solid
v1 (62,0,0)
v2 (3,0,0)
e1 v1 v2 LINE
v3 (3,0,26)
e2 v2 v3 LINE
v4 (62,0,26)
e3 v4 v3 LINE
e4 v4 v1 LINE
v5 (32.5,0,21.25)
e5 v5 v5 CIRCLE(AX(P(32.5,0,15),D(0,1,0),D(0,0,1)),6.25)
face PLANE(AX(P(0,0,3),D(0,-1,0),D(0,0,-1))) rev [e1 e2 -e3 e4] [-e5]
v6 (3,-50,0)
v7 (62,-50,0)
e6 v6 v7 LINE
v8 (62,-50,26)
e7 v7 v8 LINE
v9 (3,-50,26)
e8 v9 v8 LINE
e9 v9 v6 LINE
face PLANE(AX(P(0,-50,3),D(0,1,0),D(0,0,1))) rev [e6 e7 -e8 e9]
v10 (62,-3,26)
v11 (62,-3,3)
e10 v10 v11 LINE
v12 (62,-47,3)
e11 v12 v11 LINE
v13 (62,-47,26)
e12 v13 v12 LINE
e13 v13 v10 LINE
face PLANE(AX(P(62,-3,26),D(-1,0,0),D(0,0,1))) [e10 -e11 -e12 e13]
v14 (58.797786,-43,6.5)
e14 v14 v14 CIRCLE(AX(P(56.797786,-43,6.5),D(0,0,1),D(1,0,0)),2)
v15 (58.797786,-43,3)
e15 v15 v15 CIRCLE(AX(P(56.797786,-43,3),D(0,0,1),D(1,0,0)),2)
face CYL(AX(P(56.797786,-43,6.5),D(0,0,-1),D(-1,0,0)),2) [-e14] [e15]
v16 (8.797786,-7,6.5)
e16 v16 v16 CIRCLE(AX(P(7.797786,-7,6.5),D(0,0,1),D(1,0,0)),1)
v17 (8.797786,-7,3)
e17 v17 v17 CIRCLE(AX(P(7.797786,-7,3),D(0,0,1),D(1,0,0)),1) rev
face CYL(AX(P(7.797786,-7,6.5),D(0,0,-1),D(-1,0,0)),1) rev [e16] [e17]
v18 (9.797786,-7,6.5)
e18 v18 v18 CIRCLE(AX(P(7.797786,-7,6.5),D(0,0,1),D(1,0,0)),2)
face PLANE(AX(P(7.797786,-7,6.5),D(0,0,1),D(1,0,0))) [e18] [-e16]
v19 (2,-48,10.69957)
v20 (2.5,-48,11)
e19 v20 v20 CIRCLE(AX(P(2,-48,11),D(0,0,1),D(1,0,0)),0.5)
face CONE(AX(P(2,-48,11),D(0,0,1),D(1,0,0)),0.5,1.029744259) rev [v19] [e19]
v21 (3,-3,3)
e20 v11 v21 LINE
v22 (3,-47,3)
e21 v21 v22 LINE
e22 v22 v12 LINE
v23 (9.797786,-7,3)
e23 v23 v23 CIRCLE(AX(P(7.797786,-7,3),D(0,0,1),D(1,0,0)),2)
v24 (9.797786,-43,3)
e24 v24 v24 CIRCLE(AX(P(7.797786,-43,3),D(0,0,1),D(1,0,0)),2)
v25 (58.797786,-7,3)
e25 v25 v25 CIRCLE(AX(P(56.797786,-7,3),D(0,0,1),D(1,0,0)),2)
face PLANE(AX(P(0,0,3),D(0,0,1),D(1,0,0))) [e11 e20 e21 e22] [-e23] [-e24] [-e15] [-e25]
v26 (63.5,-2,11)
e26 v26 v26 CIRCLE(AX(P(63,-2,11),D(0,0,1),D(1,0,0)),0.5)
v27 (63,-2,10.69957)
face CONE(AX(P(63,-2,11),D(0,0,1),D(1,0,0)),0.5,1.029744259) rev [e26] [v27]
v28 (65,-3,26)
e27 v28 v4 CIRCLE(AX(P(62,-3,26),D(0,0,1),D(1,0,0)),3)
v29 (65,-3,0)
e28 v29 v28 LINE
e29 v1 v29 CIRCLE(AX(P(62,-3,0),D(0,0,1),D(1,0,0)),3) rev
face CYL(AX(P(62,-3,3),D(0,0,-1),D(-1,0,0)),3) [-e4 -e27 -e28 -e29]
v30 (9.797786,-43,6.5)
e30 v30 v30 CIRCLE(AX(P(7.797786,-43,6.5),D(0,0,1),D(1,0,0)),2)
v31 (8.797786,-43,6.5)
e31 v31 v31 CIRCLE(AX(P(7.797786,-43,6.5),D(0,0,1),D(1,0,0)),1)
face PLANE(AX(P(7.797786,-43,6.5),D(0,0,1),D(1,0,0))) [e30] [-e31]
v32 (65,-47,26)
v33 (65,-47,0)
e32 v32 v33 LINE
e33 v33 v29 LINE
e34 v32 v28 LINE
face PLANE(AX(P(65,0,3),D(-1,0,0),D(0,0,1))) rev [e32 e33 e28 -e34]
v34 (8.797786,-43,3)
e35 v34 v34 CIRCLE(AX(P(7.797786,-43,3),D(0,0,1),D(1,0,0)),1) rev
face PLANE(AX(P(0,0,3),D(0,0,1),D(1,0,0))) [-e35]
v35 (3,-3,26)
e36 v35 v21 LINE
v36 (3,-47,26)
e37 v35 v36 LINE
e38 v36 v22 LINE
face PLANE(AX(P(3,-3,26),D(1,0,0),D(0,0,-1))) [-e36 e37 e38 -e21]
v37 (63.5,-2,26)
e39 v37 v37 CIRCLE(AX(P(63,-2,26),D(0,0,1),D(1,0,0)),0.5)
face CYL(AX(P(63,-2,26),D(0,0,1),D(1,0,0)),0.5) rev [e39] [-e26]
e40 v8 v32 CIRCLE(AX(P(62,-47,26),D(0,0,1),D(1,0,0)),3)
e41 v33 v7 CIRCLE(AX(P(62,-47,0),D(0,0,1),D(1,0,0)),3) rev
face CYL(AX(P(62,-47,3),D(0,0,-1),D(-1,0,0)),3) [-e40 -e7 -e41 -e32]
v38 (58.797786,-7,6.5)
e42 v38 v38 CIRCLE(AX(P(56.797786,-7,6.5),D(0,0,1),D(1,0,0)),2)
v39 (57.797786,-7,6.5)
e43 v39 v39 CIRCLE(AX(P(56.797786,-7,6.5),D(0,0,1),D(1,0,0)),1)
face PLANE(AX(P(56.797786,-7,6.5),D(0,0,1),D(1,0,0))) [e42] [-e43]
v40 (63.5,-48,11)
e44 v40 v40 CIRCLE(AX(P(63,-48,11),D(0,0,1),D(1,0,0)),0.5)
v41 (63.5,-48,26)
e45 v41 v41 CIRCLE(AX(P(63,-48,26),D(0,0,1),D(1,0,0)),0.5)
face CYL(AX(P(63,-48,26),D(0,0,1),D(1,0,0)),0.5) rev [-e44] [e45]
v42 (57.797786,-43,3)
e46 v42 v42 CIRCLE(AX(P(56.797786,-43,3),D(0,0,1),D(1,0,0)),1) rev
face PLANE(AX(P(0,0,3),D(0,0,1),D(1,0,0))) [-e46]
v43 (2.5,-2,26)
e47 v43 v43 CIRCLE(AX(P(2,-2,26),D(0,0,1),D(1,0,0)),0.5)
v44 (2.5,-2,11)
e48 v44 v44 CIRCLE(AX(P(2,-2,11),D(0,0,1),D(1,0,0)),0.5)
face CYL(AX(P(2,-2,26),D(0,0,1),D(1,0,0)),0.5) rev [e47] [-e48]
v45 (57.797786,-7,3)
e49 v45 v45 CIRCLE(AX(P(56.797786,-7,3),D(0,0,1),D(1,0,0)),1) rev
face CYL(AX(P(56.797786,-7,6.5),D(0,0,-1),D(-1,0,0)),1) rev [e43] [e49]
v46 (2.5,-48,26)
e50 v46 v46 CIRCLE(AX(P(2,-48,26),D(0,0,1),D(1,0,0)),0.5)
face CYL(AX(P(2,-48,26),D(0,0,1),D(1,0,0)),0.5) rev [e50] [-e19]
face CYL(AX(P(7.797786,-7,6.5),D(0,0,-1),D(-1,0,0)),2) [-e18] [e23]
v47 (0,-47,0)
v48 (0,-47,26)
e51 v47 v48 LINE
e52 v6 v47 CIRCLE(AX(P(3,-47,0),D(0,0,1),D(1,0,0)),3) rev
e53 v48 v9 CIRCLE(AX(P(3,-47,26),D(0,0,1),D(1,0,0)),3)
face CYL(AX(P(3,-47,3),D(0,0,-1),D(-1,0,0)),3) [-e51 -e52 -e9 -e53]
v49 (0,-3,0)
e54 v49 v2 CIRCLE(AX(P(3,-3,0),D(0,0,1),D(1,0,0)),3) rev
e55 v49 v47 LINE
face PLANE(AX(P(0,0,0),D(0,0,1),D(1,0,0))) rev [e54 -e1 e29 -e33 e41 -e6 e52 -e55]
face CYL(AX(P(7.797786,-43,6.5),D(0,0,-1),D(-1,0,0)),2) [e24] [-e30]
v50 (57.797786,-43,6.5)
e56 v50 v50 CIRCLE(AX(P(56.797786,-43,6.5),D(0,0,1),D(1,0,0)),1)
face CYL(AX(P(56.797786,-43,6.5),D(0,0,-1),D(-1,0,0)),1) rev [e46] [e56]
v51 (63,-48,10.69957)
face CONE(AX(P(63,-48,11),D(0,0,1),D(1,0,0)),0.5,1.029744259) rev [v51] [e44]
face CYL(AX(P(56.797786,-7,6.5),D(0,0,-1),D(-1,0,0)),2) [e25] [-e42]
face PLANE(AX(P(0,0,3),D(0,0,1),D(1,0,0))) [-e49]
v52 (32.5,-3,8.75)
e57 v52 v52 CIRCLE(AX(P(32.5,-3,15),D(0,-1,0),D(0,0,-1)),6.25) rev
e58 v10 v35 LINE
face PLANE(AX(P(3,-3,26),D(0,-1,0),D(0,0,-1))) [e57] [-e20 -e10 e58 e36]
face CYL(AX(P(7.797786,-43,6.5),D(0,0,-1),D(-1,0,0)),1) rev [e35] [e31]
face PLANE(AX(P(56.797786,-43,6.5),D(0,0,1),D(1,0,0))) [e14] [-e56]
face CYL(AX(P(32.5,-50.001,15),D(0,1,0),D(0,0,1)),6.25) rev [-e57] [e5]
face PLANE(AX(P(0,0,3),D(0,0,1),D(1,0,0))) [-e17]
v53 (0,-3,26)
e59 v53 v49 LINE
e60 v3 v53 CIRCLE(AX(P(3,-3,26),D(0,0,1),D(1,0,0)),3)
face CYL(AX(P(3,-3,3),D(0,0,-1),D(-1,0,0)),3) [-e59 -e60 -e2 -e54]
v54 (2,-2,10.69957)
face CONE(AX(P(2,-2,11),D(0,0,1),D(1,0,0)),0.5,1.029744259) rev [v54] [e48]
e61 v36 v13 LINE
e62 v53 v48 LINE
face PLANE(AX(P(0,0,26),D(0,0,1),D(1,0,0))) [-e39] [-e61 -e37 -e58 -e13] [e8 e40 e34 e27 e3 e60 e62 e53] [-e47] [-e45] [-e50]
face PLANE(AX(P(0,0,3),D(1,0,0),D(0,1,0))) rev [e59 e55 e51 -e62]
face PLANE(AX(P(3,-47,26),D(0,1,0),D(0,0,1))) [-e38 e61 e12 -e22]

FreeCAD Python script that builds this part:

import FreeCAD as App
import Part
import Sketcher

V = App.Vector


def edges_at(feature, points):
    """Names of the edges that pass closest to the given points."""
    edges = feature.Shape.Edges
    near = lambda p: min(range(len(edges)), key=lambda i: edges[i].distToShape(Part.Vertex(*p))[0])
    return sorted({f"Edge{near(p) + 1}" for p in points})


def add_polygon(sketch, points):
    """Adds a closed chain of lines whose ends are joined by coincident constraints."""
    first, n = sketch.GeometryCount, len(points)
    for a, b in zip(points, points[1:] + points[:1]):
        sketch.addGeometry(Part.LineSegment(App.Vector(*a, 0), App.Vector(*b, 0)), False)
    for i in range(n):
        sketch.addConstraint(Sketcher.Constraint("Coincident", first + i, 2, first + (i + 1) % n, 1))

doc = App.newDocument("Part")
body = doc.addObject("PartDesign::Body", "Body")

# Sketch on XY plane
sketch1 = doc.addObject("Sketcher::SketchObject", "Sketch")
body.addObject(sketch1)
sketch1.AttachmentSupport = (doc.XY_Plane, [""])
sketch1.MapMode = "FlatFace"
add_polygon(sketch1, [(0, 0), (0, -50), (65, -50), (65, 0)])  # lines 0-3
sketch1.addConstraint(Sketcher.Constraint("Vertical", 0))
sketch1.addConstraint(Sketcher.Constraint("Horizontal", 1))
sketch1.addConstraint(Sketcher.Constraint("Vertical", 2))
sketch1.addConstraint(Sketcher.Constraint("Horizontal", 3))
sketch1.addConstraint(Sketcher.Constraint("Coincident", 3, 2, -1, 1))
sketch1.addConstraint(Sketcher.Constraint("DistanceX", 1, 1, 1, 2, 65.0))
sketch1.addConstraint(Sketcher.Constraint("DistanceY", 0, 2, 0, 1, 50.0))
pad1 = doc.addObject("PartDesign::Pad", "Pad")
body.addObject(pad1)
pad1.Profile = sketch1
pad1.Length = 3

# Sketch on XY plane
sketch2 = doc.addObject("Sketcher::SketchObject", "Sketch001")
body.addObject(sketch2)
sketch2.AttachmentSupport = (doc.XY_Plane, [""])
sketch2.MapMode = "FlatFace"
sketch2.AttachmentOffset = App.Placement(V(0, 0, 3), App.Rotation())
add_polygon(sketch2, [(0, 0), (0, -50), (65, -50), (65, 0)])  # lines 0-3
add_polygon(sketch2, [(62, -47), (3, -47), (3, -3), (62, -3)])  # lines 4-7
sketch2.addConstraint(Sketcher.Constraint("Vertical", 0))
sketch2.addConstraint(Sketcher.Constraint("Horizontal", 1))
sketch2.addConstraint(Sketcher.Constraint("Vertical", 2))
sketch2.addConstraint(Sketcher.Constraint("Horizontal", 3))
sketch2.addConstraint(Sketcher.Constraint("Horizontal", 4))
sketch2.addConstraint(Sketcher.Constraint("Vertical", 5))
sketch2.addConstraint(Sketcher.Constraint("Horizontal", 6))
sketch2.addConstraint(Sketcher.Constraint("Vertical", 7))
sketch2.addConstraint(Sketcher.Constraint("Coincident", 3, 2, -1, 1))
sketch2.addConstraint(Sketcher.Constraint("DistanceX", 1, 1, 1, 2, 65.0))
sketch2.addConstraint(Sketcher.Constraint("DistanceX", 4, 2, 4, 1, 59.0))
sketch2.addConstraint(Sketcher.Constraint("DistanceY", 0, 2, 0, 1, 50.0))
sketch2.addConstraint(Sketcher.Constraint("DistanceY", 5, 1, 5, 2, 44.0))
sketch2.addConstraint(Sketcher.Constraint("DistanceX", -1, 1, 4, 2, 3.0))
sketch2.addConstraint(Sketcher.Constraint("DistanceY", 4, 2, -1, 1, 47.0))
pad2 = doc.addObject("PartDesign::Pad", "Pad001")
body.addObject(pad2)
pad2.Profile = sketch2
pad2.Length = 23

# Sketch on XY plane
sketch3 = doc.addObject("Sketcher::SketchObject", "Sketch002")
body.addObject(sketch3)
sketch3.AttachmentSupport = (doc.XY_Plane, [""])
sketch3.MapMode = "FlatFace"
sketch3.AttachmentOffset = App.Placement(V(0, 0, 3), App.Rotation())
sketch3.addGeometry(Part.Circle(V(7.8, -7, 0), V(0, 0, 1), 2), False)
sketch3.addGeometry(Part.Circle(V(7.8, -7, 0), V(0, 0, 1), 1), False)
sketch3.addGeometry(Part.Circle(V(56.8, -7, 0), V(0, 0, 1), 2), False)
sketch3.addGeometry(Part.Circle(V(56.8, -7, 0), V(0, 0, 1), 1), False)
sketch3.addGeometry(Part.Circle(V(56.8, -43, 0), V(0, 0, 1), 2), False)
sketch3.addGeometry(Part.Circle(V(56.8, -43, 0), V(0, 0, 1), 1), False)
sketch3.addGeometry(Part.Circle(V(7.8, -43, 0), V(0, 0, 1), 2), False)
sketch3.addGeometry(Part.Circle(V(7.8, -43, 0), V(0, 0, 1), 1), False)
sketch3.addConstraint(Sketcher.Constraint("Coincident", 1, 3, 0, 3))
sketch3.addConstraint(Sketcher.Constraint("Coincident", 3, 3, 2, 3))
sketch3.addConstraint(Sketcher.Constraint("Coincident", 5, 3, 4, 3))
sketch3.addConstraint(Sketcher.Constraint("Coincident", 7, 3, 6, 3))
sketch3.addConstraint(Sketcher.Constraint("Equal", 0, 2))
sketch3.addConstraint(Sketcher.Constraint("Equal", 1, 3))
sketch3.addConstraint(Sketcher.Constraint("Equal", 2, 4))
sketch3.addConstraint(Sketcher.Constraint("Equal", 3, 5))
sketch3.addConstraint(Sketcher.Constraint("Equal", 4, 6))
sketch3.addConstraint(Sketcher.Constraint("Equal", 5, 7))
sketch3.addConstraint(Sketcher.Constraint("Horizontal", 1, 3, 2, 3))
sketch3.addConstraint(Sketcher.Constraint("Horizontal", 5, 3, 6, 3))
sketch3.addConstraint(Sketcher.Constraint("Vertical", 3, 3, 4, 3))
sketch3.addConstraint(Sketcher.Constraint("Vertical", 1, 3, 6, 3))
sketch3.addConstraint(Sketcher.Constraint("Diameter", 0, 4.0))
sketch3.addConstraint(Sketcher.Constraint("Diameter", 1, 2.0))
sketch3.addConstraint(Sketcher.Constraint("DistanceY", 0, 3, -1, 1, 7.0))
sketch3.addConstraint(Sketcher.Constraint("DistanceY", 4, 3, -1, 1, 43.0))
sketch3.addConstraint(Sketcher.Constraint("DistanceX", 0, 3, 2, 3, 49.0))
sketch3.addConstraint(Sketcher.Constraint("DistanceX", -1, 1, 0, 3, 7.797786))
pad3 = doc.addObject("PartDesign::Pad", "Pad002")
body.addObject(pad3)
pad3.Profile = sketch3
pad3.Length = 3.5

# Sketch on XZ plane
sketch4 = doc.addObject("Sketcher::SketchObject", "Sketch003")
body.addObject(sketch4)
sketch4.AttachmentSupport = (doc.XZ_Plane, [""])
sketch4.MapMode = "FlatFace"
sketch4.addGeometry(Part.Circle(V(32, 15, 0), V(0, 0, 1), 6), False)
sketch4.addConstraint(Sketcher.Constraint("Diameter", 0, 12.5))
sketch4.addConstraint(Sketcher.Constraint("DistanceY", -1, 1, 0, 3, 15.0))
sketch4.addConstraint(Sketcher.Constraint("DistanceX", -1, 1, 0, 3, 32.5))
pocket1 = doc.addObject("PartDesign::Pocket", "Pocket")
body.addObject(pocket1)
pocket1.Profile = sketch4
pocket1.Type = "UpToFirst"
pocket1.Reversed = True
doc.recompute()

fillet = doc.addObject("PartDesign::Fillet", "Fillet")
body.addObject(fillet)
fillet.Base = (pocket1, edges_at(pocket1, [
    (0, 0, 13),
    (65, 0, 13),
    (65, -50, 13),
    (0, -50, 13),
]))
fillet.Radius = 3

# Sketch on XY plane
sketch5 = doc.addObject("Sketcher::SketchObject", "Sketch004")
body.addObject(sketch5)
sketch5.AttachmentSupport = (doc.XY_Plane, [""])
sketch5.MapMode = "FlatFace"
sketch5.AttachmentOffset = App.Placement(V(0, 0, 26), App.Rotation())
sketch5.addGeometry(Part.Circle(V(63, -48, 0), V(0, 0, 1), 0.5), False)
sketch5.addGeometry(Part.Circle(V(63, -2, 0), V(0, 0, 1), 0.5), False)
sketch5.addGeometry(Part.Circle(V(2, -2, 0), V(0, 0, 1), 0.5), False)
sketch5.addGeometry(Part.Circle(V(2, -48, 0), V(0, 0, 1), 0.5), False)
sketch5.addConstraint(Sketcher.Constraint("Equal", 0, 1))
sketch5.addConstraint(Sketcher.Constraint("Equal", 1, 2))
sketch5.addConstraint(Sketcher.Constraint("Equal", 2, 3))
sketch5.addConstraint(Sketcher.Constraint("Horizontal", 1, 3, 2, 3))
sketch5.addConstraint(Sketcher.Constraint("Horizontal", 0, 3, 3, 3))
sketch5.addConstraint(Sketcher.Constraint("Vertical", 0, 3, 1, 3))
sketch5.addConstraint(Sketcher.Constraint("Vertical", 2, 3, 3, 3))
sketch5.addConstraint(Sketcher.Constraint("Diameter", 0, 1.0))
sketch5.addConstraint(Sketcher.Constraint("DistanceX", -1, 1, 0, 3, 63.0))
sketch5.addConstraint(Sketcher.Constraint("DistanceY", 0, 3, -1, 1, 48.0))
sketch5.addConstraint(Sketcher.Constraint("DistanceY", 1, 3, -1, 1, 2.0))
sketch5.addConstraint(Sketcher.Constraint("DistanceX", -1, 1, 2, 3, 2.0))
doc.recompute()
hole = doc.addObject("PartDesign::Hole", "Hole")
body.addObject(hole)
hole.Profile = sketch5
hole.ThreadType = "None"
hole.Diameter = 1
hole.DepthType = "Dimension"
hole.Depth = 15
hole.DrillPoint = "Angled"
hole.DrillPointAngle = 118

doc.recompute()
